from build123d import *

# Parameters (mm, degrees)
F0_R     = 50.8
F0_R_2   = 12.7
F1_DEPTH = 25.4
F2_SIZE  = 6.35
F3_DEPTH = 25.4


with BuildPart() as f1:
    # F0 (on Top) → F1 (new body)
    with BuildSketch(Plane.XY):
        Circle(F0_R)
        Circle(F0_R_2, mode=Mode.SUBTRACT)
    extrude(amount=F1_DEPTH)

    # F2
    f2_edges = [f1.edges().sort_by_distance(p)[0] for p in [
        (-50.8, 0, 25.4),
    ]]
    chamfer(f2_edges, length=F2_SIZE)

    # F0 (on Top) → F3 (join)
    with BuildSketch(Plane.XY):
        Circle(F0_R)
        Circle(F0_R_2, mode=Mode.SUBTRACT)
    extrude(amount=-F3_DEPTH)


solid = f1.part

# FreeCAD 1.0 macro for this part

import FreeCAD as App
import Part
import Sketcher
Q = App.Units.Quantity


def edges_at(feature, points):
    """Names of the edges that pass closest to the given points."""
    edges = feature.Shape.Edges
    near = lambda p: min(range(len(edges)), key=lambda i: edges[i].distToShape(Part.Vertex(*p))[0])
    return sorted({f"Edge{near(p) + 1}" for p in points})

doc = App.newDocument("Part")
body = doc.addObject("PartDesign::Body", "Body")

sketch1 = body.newObject("Sketcher::SketchObject", "Sketch")
sketch1.AttachmentSupport = (doc.getObject("XY_Plane"), [""])
sketch1.MapMode = "FlatFace"
sketch1.addGeometry(Part.Circle(App.Vector(0, 0, 0), App.Vector(0, 0, 1), 51), False)
sketch1.addGeometry(Part.Circle(App.Vector(0, 0, 0), App.Vector(0, 0, 1), 13), False)
sketch1.addConstraint(Sketcher.Constraint("Coincident", 0, 3, -1, 1))
sketch1.addConstraint(Sketcher.Constraint("Coincident", 1, 3, -1, 1))
sketch1.addConstraint(Sketcher.Constraint("Diameter", 0, Q("4 in")))
sketch1.addConstraint(Sketcher.Constraint("Diameter", 1, Q("1 in")))
pad1 = body.newObject("PartDesign::Pad", "Pad")
pad1.Profile = sketch1
pad1.Length = Q("1 in")
doc.recompute()

chamfer = body.newObject("PartDesign::Chamfer", "Chamfer")
chamfer.Base = (pad1, edges_at(pad1, [(-50.8, 0, 25.4)]))
chamfer.Size = Q("0.25 in")

sketch2 = body.newObject("Sketcher::SketchObject", "Sketch001")
sketch2.AttachmentSupport = (doc.getObject("XY_Plane"), [""])
sketch2.MapMode = "FlatFace"
sketch2.addGeometry(Part.Circle(App.Vector(0, 0, 0), App.Vector(0, 0, 1), 51), False)
sketch2.addGeometry(Part.Circle(App.Vector(0, 0, 0), App.Vector(0, 0, 1), 13), False)
sketch2.addConstraint(Sketcher.Constraint("Coincident", 0, 3, -1, 1))
sketch2.addConstraint(Sketcher.Constraint("Coincident", 1, 3, -1, 1))
sketch2.addConstraint(Sketcher.Constraint("Diameter", 0, Q("4 in")))
sketch2.addConstraint(Sketcher.Constraint("Diameter", 1, Q("1 in")))
pad2 = body.newObject("PartDesign::Pad", "Pad001")
pad2.Profile = sketch2
pad2.Length = Q("1 in")
pad2.Reversed = True

doc.recompute()
